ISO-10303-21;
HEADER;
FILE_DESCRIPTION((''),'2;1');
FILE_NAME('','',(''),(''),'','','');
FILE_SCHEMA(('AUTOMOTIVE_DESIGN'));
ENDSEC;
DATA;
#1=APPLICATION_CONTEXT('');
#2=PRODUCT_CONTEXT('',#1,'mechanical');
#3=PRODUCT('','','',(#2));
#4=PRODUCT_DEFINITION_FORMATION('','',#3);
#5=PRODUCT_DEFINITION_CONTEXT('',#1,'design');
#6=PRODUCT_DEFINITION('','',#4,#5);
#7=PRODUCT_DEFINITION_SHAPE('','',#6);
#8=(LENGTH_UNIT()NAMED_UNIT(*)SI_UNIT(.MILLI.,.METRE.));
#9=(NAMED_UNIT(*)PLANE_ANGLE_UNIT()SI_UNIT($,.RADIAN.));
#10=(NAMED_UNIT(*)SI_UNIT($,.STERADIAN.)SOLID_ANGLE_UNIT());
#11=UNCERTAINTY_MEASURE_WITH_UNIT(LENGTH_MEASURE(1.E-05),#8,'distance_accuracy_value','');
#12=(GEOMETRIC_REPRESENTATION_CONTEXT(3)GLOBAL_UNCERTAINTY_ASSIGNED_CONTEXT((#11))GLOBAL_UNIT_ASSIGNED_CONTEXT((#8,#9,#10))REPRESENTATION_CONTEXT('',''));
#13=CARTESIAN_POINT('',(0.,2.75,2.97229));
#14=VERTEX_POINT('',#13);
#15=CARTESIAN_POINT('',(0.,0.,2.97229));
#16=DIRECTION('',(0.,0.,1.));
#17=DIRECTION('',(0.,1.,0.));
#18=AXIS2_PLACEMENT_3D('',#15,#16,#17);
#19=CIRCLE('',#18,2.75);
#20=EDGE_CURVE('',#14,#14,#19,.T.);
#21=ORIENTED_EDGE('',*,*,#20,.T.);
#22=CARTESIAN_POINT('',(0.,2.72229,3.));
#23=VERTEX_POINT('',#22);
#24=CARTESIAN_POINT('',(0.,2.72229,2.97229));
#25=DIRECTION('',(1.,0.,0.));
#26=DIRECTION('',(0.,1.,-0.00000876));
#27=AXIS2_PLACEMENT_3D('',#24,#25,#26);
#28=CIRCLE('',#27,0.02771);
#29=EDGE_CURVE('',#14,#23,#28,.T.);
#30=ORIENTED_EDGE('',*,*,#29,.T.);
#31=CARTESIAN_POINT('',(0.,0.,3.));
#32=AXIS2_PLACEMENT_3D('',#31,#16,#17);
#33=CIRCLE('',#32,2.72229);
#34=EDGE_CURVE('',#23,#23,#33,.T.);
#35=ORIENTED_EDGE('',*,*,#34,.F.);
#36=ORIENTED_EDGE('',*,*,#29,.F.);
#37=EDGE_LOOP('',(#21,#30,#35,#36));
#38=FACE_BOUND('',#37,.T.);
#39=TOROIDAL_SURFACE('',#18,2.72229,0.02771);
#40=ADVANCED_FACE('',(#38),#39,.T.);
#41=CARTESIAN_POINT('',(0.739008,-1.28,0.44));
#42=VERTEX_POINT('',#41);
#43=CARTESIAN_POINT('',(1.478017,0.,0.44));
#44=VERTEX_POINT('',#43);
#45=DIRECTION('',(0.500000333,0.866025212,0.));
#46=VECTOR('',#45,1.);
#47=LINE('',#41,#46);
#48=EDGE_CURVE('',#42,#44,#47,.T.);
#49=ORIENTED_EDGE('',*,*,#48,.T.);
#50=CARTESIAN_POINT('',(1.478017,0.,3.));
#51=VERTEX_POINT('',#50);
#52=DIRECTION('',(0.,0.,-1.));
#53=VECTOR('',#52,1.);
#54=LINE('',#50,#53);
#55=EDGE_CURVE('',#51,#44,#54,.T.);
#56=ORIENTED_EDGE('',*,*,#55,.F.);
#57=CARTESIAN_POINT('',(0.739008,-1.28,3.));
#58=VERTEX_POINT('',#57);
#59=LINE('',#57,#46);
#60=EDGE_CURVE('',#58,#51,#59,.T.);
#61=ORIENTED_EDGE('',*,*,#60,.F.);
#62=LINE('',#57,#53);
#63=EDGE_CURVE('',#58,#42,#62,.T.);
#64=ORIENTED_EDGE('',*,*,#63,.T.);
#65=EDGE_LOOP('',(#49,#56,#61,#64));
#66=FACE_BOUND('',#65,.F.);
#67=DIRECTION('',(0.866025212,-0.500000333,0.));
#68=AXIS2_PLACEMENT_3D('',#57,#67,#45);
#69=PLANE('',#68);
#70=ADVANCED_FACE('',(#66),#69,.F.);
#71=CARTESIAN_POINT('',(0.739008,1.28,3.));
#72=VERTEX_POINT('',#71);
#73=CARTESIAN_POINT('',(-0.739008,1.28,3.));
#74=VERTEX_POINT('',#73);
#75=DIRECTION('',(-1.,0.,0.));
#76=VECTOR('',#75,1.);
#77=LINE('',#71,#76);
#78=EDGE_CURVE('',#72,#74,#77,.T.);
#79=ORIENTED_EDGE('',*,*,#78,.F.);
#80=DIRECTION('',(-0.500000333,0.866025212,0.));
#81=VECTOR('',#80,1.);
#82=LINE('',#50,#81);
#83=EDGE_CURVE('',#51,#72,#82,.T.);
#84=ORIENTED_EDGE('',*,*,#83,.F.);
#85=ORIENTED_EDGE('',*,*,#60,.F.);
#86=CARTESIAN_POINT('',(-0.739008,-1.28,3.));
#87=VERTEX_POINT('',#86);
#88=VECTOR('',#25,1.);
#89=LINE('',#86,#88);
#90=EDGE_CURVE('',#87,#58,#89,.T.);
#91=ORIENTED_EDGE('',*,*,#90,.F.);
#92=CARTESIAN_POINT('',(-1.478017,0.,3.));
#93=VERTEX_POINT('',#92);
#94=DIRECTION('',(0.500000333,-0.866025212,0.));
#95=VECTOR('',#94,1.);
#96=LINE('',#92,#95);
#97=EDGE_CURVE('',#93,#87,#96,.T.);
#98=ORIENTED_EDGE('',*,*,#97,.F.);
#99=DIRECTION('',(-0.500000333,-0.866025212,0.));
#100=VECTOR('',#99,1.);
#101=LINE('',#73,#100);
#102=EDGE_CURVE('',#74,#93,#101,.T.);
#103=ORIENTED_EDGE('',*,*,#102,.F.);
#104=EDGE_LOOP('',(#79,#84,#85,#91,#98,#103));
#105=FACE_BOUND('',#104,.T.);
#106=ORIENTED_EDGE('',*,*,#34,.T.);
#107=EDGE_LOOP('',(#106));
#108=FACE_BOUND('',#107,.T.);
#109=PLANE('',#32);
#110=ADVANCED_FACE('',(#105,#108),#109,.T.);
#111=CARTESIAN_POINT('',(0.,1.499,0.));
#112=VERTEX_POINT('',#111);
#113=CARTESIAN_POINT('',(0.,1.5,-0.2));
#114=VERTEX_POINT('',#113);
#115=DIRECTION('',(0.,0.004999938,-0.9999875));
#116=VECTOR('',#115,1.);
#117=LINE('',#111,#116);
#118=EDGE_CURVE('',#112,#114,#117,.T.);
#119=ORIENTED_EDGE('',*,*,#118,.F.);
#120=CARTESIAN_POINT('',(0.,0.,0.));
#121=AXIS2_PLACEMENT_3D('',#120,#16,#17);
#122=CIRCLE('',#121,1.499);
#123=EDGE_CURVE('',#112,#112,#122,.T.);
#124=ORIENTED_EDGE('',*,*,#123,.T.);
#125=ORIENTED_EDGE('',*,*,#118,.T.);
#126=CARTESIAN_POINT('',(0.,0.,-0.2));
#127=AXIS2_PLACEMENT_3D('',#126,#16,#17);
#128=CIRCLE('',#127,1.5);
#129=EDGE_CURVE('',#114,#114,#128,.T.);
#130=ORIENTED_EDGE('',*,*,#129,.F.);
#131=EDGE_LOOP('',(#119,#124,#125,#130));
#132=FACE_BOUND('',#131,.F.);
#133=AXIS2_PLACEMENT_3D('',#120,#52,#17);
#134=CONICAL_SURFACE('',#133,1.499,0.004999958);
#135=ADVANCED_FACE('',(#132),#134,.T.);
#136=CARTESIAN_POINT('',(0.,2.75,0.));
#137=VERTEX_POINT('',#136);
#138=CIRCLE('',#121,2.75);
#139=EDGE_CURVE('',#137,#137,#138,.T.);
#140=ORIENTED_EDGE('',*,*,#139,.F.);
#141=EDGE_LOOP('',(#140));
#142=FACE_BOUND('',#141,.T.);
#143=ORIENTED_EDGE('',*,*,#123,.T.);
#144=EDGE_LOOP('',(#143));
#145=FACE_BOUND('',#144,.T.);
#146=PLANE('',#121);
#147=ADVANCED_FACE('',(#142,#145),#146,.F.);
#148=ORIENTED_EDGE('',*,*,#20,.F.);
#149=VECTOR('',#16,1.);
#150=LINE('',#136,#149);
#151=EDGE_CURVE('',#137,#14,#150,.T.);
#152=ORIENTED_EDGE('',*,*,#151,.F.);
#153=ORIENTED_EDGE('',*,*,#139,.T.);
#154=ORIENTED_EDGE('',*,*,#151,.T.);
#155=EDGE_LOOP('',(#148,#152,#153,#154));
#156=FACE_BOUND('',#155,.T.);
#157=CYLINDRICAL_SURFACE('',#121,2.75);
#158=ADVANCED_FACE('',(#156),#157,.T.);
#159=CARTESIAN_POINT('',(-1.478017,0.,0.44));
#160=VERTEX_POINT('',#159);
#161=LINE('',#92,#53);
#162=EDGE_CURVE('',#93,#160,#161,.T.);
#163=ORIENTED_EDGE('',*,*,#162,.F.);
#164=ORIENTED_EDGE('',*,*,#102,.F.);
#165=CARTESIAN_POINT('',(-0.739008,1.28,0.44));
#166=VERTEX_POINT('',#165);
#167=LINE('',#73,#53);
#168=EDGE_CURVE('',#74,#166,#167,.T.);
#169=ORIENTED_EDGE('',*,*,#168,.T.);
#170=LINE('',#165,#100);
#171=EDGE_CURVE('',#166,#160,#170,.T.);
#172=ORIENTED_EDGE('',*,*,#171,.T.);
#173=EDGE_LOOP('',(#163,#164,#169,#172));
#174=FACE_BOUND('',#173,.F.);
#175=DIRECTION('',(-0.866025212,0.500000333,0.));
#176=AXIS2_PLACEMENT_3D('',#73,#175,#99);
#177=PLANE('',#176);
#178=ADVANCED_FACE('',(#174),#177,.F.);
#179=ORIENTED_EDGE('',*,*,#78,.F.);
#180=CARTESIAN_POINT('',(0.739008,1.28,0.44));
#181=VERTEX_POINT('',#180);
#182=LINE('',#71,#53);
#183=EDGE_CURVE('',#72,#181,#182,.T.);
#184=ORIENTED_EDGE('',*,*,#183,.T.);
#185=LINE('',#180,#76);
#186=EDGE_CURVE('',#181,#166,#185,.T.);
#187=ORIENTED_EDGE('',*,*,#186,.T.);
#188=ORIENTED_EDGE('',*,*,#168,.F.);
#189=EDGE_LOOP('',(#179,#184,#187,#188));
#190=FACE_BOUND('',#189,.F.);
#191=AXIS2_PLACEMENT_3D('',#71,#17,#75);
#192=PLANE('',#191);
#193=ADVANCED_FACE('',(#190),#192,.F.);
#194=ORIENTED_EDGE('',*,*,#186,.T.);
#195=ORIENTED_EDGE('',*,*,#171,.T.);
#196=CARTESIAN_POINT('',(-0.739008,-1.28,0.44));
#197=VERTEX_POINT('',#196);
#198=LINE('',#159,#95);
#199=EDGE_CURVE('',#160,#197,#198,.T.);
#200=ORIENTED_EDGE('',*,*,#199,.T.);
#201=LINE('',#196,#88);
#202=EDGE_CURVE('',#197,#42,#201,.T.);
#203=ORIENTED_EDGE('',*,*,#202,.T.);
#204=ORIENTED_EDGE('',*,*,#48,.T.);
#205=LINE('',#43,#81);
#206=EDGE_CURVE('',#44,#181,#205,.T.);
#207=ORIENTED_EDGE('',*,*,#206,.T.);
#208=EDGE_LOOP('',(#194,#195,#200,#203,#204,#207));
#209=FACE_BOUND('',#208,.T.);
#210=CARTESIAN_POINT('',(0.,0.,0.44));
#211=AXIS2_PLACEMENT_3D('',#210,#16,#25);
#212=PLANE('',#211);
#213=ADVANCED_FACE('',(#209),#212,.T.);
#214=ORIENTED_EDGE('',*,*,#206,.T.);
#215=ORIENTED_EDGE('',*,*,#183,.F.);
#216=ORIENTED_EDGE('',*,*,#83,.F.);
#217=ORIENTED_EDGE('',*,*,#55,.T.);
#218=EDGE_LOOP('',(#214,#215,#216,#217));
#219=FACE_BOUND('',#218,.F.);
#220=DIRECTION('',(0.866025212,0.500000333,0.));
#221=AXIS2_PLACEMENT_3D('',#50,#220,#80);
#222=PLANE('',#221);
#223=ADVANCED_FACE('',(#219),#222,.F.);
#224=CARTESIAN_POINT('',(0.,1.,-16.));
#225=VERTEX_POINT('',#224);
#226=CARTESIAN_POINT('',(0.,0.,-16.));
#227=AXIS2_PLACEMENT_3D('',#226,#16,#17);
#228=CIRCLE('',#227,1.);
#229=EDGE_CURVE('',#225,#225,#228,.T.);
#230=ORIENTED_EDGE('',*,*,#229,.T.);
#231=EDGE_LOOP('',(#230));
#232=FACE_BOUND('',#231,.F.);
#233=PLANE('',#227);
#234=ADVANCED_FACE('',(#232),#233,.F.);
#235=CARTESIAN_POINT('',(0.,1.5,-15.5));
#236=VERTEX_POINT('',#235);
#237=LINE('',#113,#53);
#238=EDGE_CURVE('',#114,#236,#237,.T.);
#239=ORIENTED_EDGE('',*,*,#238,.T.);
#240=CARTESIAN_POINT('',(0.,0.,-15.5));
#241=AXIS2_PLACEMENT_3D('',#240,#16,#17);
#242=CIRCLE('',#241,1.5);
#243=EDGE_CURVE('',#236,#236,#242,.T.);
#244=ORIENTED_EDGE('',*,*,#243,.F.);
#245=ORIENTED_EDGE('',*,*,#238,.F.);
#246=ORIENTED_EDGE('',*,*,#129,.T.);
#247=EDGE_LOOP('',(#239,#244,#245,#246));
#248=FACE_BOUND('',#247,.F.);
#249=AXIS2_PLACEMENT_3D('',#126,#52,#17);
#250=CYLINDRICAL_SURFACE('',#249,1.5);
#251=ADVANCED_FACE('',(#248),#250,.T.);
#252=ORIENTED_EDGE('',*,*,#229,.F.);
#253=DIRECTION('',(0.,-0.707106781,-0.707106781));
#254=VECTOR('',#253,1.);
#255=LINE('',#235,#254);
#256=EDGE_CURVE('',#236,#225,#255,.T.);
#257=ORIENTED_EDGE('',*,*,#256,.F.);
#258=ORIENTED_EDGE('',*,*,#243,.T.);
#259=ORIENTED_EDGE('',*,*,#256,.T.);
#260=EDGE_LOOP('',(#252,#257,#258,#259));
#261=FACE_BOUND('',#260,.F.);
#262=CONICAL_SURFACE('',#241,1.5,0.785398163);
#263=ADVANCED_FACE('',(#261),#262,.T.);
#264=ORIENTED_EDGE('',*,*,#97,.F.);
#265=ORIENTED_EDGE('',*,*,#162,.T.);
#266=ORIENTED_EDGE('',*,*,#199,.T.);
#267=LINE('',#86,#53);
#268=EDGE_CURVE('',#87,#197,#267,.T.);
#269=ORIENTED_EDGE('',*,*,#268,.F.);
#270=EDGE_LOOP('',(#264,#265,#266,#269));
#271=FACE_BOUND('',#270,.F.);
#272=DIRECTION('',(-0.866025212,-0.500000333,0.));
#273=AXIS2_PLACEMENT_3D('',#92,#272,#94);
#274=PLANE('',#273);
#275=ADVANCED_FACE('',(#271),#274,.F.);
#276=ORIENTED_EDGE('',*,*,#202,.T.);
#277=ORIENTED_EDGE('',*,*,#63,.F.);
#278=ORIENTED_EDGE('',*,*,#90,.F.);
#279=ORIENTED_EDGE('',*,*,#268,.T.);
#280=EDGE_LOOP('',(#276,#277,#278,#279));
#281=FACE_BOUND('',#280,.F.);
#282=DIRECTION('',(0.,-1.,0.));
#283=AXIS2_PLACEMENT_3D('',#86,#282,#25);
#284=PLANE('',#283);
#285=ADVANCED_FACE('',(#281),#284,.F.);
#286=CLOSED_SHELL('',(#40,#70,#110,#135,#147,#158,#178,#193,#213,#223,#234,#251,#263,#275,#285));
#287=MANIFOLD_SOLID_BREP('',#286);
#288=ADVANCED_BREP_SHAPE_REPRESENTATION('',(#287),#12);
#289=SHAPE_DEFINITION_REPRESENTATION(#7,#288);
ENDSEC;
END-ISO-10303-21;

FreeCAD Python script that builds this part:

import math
import FreeCAD as App
import Part
import Sketcher
Q = App.Units.Quantity

doc = App.newDocument("Part")
body = doc.addObject("PartDesign::Body", "Body")

sketch1 = body.newObject("Sketcher::SketchObject", "Sketch")
sketch1.AttachmentSupport = (doc.getObject("YZ_Plane"), [""])
sketch1.MapMode = "FlatFace"
sketch1.addGeometry([
    Part.LineSegment(App.Vector(1.499, 0, 0), App.Vector(2.75, 0, 0)),
    Part.LineSegment(App.Vector(2.75, 0, 0), App.Vector(2.75, 2.972, 0)),
    Part.ArcOfCircle(Part.Circle(App.Vector(2.722, 2.972, 0), App.Vector(0, 0, 1), 0.028), math.radians(0), math.radians(90)),
    Part.LineSegment(App.Vector(2.722, 3, 0), App.Vector(0, 3, 0)),
    Part.LineSegment(App.Vector(0, 3, 0), App.Vector(0, -16, 0)),
    Part.LineSegment(App.Vector(0, -16, 0), App.Vector(1, -16, 0)),
    Part.LineSegment(App.Vector(1, -16, 0), App.Vector(1.5, -15.5, 0)),
    Part.LineSegment(App.Vector(1.5, -15.5, 0), App.Vector(1.5, -0.2, 0)),
    Part.LineSegment(App.Vector(1.5, -0.2, 0), App.Vector(1.499, 0, 0)),
], False)
sketch1.addConstraint([
    Sketcher.Constraint("Coincident", 0, 2, 1, 1),
    Sketcher.Constraint("Coincident", 1, 2, 2, 1),
    Sketcher.Constraint("Coincident", 2, 2, 3, 1),
    Sketcher.Constraint("Coincident", 3, 2, 4, 1),
    Sketcher.Constraint("Coincident", 4, 2, 5, 1),
    Sketcher.Constraint("Coincident", 5, 2, 6, 1),
    Sketcher.Constraint("Coincident", 6, 2, 7, 1),
    Sketcher.Constraint("Coincident", 7, 2, 8, 1),
    Sketcher.Constraint("Coincident", 8, 2, 0, 1),
    Sketcher.Constraint("Horizontal", 0),
    Sketcher.Constraint("Vertical", 1),
    Sketcher.Constraint("Horizontal", 3),
    Sketcher.Constraint("Vertical", 4),
    Sketcher.Constraint("Horizontal", 5),
    Sketcher.Constraint("Vertical", 7),
    Sketcher.Constraint("PointOnObject", 0, 2, -1),
    Sketcher.Constraint("PointOnObject", 3, 2, -2),
    Sketcher.Constraint("Horizontal", 2, 3, 1, 2),
    Sketcher.Constraint("DistanceX", 5, 1, 5, 2, 1.0),
    Sketcher.Constraint("DistanceY", 4, 2, 4, 1, 19.0),
    Sketcher.Constraint("Angle", 6, Q("45 deg")),
    Sketcher.Constraint("DistanceY", 7, 1, 7, 2, 15.3),
    Sketcher.Constraint("DistanceY", -1, 1, 2, 2, 3.0),
    Sketcher.Constraint("DistanceX", -1, 1, 6, 2, 1.5),
    Sketcher.Constraint("DistanceX", 0, 1, 0, 2, 1.251),
    Sketcher.Constraint("DistanceX", -1, 1, 0, 2, 2.75),
    Sketcher.Constraint("Radius", 2, 0.02771),
    Sketcher.Constraint("DistanceX", 3, 2, 3, 1, 2.72229),
])
revolution = body.newObject("PartDesign::Revolution", "Revolution")
revolution.Profile = sketch1
revolution.ReferenceAxis = (sketch1, ["V_Axis"])
revolution.Angle = 360

sketch2 = body.newObject("Sketcher::SketchObject", "Sketch001")
sketch2.AttachmentSupport = (doc.getObject("XY_Plane"), [""])
sketch2.MapMode = "FlatFace"
sketch2.AttachmentOffset = App.Placement(App.Vector(0, 0, 3), App.Rotation())
sketch2.addGeometry([
    Part.LineSegment(App.Vector(1.5, 0, 0), App.Vector(0.7, 1.3, 0)),
    Part.LineSegment(App.Vector(0.7, 1.3, 0), App.Vector(-0.7, 1.3, 0)),
    Part.LineSegment(App.Vector(-0.7, 1.3, 0), App.Vector(-1.5, 0, 0)),
    Part.LineSegment(App.Vector(-1.5, 0, 0), App.Vector(-0.7, -1.3, 0)),
    Part.LineSegment(App.Vector(-0.7, -1.3, 0), App.Vector(0.7, -1.3, 0)),
    Part.LineSegment(App.Vector(0.7, -1.3, 0), App.Vector(1.5, 0, 0)),
], False)
sketch2.addConstraint([
    Sketcher.Constraint("Coincident", 0, 2, 1, 1),
    Sketcher.Constraint("Coincident", 1, 2, 2, 1),
    Sketcher.Constraint("Coincident", 2, 2, 3, 1),
    Sketcher.Constraint("Coincident", 3, 2, 4, 1),
    Sketcher.Constraint("Coincident", 4, 2, 5, 1),
    Sketcher.Constraint("Coincident", 5, 2, 0, 1),
    Sketcher.Constraint("Horizontal", 1),
    Sketcher.Constraint("Horizontal", 4),
    Sketcher.Constraint("Symmetric", 0, 2, 3, 2, -1, 1),
    Sketcher.Constraint("Symmetric", 2, 2, 5, 2, -1, 1),
    Sketcher.Constraint("PointOnObject", 2, 2, -1),
    Sketcher.Constraint("Parallel", 2, 5),
    Sketcher.Constraint("Vertical", 1, 2, 3, 2),
    Sketcher.Constraint("DistanceY", -1, 1, 0, 2, 1.28),
    Sketcher.Constraint("DistanceX", 1, 2, 1, 1, 1.478016),
    Sketcher.Constraint("DistanceX", 2, 2, 1, 2, 0.739009),
])
pocket1 = body.newObject("PartDesign::Pocket", "Pocket")
pocket1.Profile = sketch2
pocket1.Length = 2.56

doc.recompute()
